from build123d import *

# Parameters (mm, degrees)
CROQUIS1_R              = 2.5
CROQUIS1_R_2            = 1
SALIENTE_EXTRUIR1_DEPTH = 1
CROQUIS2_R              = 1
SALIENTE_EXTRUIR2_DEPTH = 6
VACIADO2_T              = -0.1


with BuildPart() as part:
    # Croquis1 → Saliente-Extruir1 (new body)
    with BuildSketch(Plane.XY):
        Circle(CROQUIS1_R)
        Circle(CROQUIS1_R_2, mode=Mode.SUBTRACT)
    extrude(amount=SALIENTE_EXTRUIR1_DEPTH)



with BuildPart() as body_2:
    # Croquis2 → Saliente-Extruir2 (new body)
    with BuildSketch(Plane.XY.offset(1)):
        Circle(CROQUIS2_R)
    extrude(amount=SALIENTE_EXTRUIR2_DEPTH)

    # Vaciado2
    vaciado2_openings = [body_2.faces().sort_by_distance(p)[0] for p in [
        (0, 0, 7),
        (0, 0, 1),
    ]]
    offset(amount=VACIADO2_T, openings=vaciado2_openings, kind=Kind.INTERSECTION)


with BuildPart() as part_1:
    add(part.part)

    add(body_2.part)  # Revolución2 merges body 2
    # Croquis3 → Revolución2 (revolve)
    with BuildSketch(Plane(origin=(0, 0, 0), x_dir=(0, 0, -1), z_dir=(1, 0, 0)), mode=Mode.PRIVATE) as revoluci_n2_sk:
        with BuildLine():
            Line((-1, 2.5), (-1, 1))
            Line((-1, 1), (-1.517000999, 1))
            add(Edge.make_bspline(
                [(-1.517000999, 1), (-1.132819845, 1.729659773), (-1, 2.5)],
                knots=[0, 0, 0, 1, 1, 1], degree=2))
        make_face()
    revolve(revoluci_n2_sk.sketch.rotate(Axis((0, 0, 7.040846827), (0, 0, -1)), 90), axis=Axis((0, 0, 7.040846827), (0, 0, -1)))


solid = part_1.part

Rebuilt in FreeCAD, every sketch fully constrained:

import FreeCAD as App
import Part
import Sketcher
Q = App.Units.Quantity


def faces_at(feature, points):
    """Names of the faces that lie closest to the given points."""
    faces = feature.Shape.Faces
    near = lambda p: min(range(len(faces)), key=lambda i: faces[i].distToShape(Part.Vertex(*p))[0])
    return sorted({f"Face{near(p) + 1}" for p in points})

doc = App.newDocument("Part")
params = doc.addObject("Spreadsheet::Sheet", "Params")
for row, (alias, value) in enumerate([
    ("sketch1_diameter", "5 mm"),
    ("sketch1_diameter2", "2 mm"),
    ("pad1_length", "1 mm"),
    ("sketch2_diameter", "2 mm"),
    ("pad2_length", "6 mm"),
    ("thickness_wall", "0.1 mm"),
    ("revolution_angle", "360 deg"),
], start=1):
    params.set(f"A{row}", alias)
    params.set(f"B{row}", "=" + value)
    params.setAlias(f"B{row}", alias)

body = doc.addObject("PartDesign::Body", "Body")

sketch1 = doc.addObject("Sketcher::SketchObject", "Sketch")
body.addObject(sketch1)
sketch1.AttachmentSupport = (doc.XY_Plane, [""])
sketch1.MapMode = "FlatFace"
sketch1.addGeometry([
    Part.Circle(App.Vector(0, 0, 0), App.Vector(0, 0, 1), 2.5),
    Part.Circle(App.Vector(0, 0, 0), App.Vector(0, 0, 1), 1),
], False)
sketch1.addConstraint([
    Sketcher.Constraint("Coincident", 0, 3, -1, 1),
    Sketcher.Constraint("Coincident", 1, 3, -1, 1),
    Sketcher.Constraint("Diameter", 0, Q("5 mm")),
    Sketcher.Constraint("Diameter", 1, Q("2 mm")),
])
sketch1.setExpression("Constraints[2]", "Params.sketch1_diameter")
sketch1.setExpression("Constraints[3]", "Params.sketch1_diameter2")
pad1 = doc.addObject("PartDesign::Pad", "Pad")
body.addObject(pad1)
pad1.Profile = sketch1
pad1.setExpression("Length", "Params.pad1_length")
body2 = doc.addObject("PartDesign::Body", "Body001")

sketch2 = doc.addObject("Sketcher::SketchObject", "Sketch001")
body2.addObject(sketch2)
sketch2.AttachmentSupport = (doc.getObject("XY_Plane001"), [""])
sketch2.MapMode = "FlatFace"
sketch2.AttachmentOffset = App.Placement(App.Vector(0, 0, 1), App.Rotation())
sketch2.addGeometry(Part.Circle(App.Vector(0, 0, 0), App.Vector(0, 0, 1), 1), False)
sketch2.addConstraint([
    Sketcher.Constraint("Coincident", 0, 3, -1, 1),
    Sketcher.Constraint("Diameter", 0, Q("2 mm")),
])
sketch2.setExpression("Constraints[1]", "Params.sketch2_diameter")
pad2 = doc.addObject("PartDesign::Pad", "Pad001")
body2.addObject(pad2)
pad2.Profile = sketch2
pad2.setExpression("Length", "Params.pad2_length")
doc.recompute()

thickness = doc.addObject("PartDesign::Thickness", "Thickness")
body2.addObject(thickness)
thickness.Base = (pad2, faces_at(pad2, [(0, 0, 7), (0, 0, 1)]))
thickness.setExpression("Value", "Params.thickness_wall")
thickness.Reversed = True
thickness.Join = "Intersection"
body.AllowCompound = True
doc.recompute()

boolean = doc.addObject("PartDesign::Boolean", "Boolean")
body.addObject(boolean)
boolean.Type = "Fuse"
boolean.addObjects([body2])

sketch3 = doc.addObject("Sketcher::SketchObject", "Sketch002")
body.addObject(sketch3)
sketch3.AttachmentSupport = (doc.YZ_Plane, [""])
sketch3.MapMode = "FlatFace"
sketch3.addGeometry([
    Part.LineSegment(App.Vector(1, 1, 0), App.Vector(2.5, 1, 0)),
    Part.BSplineCurve([App.Vector(1, 1.517001, 0), App.Vector(1.72966, 1.13282, 0), App.Vector(2.5, 1, 0)], [3, 3], [0, 1], False, 2, [1, 1, 1], False),
    Part.LineSegment(App.Vector(1, 1.517001, 0), App.Vector(1, 1, 0)),
], False)
sketch3.addConstraint([
    Sketcher.Constraint("Block", 1),
    Sketcher.Constraint("Coincident", 0, 2, 1, 2),
    Sketcher.Constraint("Coincident", 1, 1, 2, 1),
    Sketcher.Constraint("Coincident", 2, 2, 0, 1),
    Sketcher.Constraint("Horizontal", 0),
    Sketcher.Constraint("Vertical", 2),
])
revolution = doc.addObject("PartDesign::Revolution", "Revolution")
body.addObject(revolution)
revolution.Profile = sketch3
revolution.ReferenceAxis = (sketch3, ["V_Axis"])
revolution.setExpression("Angle", "Params.revolution_angle")

doc.recompute()
